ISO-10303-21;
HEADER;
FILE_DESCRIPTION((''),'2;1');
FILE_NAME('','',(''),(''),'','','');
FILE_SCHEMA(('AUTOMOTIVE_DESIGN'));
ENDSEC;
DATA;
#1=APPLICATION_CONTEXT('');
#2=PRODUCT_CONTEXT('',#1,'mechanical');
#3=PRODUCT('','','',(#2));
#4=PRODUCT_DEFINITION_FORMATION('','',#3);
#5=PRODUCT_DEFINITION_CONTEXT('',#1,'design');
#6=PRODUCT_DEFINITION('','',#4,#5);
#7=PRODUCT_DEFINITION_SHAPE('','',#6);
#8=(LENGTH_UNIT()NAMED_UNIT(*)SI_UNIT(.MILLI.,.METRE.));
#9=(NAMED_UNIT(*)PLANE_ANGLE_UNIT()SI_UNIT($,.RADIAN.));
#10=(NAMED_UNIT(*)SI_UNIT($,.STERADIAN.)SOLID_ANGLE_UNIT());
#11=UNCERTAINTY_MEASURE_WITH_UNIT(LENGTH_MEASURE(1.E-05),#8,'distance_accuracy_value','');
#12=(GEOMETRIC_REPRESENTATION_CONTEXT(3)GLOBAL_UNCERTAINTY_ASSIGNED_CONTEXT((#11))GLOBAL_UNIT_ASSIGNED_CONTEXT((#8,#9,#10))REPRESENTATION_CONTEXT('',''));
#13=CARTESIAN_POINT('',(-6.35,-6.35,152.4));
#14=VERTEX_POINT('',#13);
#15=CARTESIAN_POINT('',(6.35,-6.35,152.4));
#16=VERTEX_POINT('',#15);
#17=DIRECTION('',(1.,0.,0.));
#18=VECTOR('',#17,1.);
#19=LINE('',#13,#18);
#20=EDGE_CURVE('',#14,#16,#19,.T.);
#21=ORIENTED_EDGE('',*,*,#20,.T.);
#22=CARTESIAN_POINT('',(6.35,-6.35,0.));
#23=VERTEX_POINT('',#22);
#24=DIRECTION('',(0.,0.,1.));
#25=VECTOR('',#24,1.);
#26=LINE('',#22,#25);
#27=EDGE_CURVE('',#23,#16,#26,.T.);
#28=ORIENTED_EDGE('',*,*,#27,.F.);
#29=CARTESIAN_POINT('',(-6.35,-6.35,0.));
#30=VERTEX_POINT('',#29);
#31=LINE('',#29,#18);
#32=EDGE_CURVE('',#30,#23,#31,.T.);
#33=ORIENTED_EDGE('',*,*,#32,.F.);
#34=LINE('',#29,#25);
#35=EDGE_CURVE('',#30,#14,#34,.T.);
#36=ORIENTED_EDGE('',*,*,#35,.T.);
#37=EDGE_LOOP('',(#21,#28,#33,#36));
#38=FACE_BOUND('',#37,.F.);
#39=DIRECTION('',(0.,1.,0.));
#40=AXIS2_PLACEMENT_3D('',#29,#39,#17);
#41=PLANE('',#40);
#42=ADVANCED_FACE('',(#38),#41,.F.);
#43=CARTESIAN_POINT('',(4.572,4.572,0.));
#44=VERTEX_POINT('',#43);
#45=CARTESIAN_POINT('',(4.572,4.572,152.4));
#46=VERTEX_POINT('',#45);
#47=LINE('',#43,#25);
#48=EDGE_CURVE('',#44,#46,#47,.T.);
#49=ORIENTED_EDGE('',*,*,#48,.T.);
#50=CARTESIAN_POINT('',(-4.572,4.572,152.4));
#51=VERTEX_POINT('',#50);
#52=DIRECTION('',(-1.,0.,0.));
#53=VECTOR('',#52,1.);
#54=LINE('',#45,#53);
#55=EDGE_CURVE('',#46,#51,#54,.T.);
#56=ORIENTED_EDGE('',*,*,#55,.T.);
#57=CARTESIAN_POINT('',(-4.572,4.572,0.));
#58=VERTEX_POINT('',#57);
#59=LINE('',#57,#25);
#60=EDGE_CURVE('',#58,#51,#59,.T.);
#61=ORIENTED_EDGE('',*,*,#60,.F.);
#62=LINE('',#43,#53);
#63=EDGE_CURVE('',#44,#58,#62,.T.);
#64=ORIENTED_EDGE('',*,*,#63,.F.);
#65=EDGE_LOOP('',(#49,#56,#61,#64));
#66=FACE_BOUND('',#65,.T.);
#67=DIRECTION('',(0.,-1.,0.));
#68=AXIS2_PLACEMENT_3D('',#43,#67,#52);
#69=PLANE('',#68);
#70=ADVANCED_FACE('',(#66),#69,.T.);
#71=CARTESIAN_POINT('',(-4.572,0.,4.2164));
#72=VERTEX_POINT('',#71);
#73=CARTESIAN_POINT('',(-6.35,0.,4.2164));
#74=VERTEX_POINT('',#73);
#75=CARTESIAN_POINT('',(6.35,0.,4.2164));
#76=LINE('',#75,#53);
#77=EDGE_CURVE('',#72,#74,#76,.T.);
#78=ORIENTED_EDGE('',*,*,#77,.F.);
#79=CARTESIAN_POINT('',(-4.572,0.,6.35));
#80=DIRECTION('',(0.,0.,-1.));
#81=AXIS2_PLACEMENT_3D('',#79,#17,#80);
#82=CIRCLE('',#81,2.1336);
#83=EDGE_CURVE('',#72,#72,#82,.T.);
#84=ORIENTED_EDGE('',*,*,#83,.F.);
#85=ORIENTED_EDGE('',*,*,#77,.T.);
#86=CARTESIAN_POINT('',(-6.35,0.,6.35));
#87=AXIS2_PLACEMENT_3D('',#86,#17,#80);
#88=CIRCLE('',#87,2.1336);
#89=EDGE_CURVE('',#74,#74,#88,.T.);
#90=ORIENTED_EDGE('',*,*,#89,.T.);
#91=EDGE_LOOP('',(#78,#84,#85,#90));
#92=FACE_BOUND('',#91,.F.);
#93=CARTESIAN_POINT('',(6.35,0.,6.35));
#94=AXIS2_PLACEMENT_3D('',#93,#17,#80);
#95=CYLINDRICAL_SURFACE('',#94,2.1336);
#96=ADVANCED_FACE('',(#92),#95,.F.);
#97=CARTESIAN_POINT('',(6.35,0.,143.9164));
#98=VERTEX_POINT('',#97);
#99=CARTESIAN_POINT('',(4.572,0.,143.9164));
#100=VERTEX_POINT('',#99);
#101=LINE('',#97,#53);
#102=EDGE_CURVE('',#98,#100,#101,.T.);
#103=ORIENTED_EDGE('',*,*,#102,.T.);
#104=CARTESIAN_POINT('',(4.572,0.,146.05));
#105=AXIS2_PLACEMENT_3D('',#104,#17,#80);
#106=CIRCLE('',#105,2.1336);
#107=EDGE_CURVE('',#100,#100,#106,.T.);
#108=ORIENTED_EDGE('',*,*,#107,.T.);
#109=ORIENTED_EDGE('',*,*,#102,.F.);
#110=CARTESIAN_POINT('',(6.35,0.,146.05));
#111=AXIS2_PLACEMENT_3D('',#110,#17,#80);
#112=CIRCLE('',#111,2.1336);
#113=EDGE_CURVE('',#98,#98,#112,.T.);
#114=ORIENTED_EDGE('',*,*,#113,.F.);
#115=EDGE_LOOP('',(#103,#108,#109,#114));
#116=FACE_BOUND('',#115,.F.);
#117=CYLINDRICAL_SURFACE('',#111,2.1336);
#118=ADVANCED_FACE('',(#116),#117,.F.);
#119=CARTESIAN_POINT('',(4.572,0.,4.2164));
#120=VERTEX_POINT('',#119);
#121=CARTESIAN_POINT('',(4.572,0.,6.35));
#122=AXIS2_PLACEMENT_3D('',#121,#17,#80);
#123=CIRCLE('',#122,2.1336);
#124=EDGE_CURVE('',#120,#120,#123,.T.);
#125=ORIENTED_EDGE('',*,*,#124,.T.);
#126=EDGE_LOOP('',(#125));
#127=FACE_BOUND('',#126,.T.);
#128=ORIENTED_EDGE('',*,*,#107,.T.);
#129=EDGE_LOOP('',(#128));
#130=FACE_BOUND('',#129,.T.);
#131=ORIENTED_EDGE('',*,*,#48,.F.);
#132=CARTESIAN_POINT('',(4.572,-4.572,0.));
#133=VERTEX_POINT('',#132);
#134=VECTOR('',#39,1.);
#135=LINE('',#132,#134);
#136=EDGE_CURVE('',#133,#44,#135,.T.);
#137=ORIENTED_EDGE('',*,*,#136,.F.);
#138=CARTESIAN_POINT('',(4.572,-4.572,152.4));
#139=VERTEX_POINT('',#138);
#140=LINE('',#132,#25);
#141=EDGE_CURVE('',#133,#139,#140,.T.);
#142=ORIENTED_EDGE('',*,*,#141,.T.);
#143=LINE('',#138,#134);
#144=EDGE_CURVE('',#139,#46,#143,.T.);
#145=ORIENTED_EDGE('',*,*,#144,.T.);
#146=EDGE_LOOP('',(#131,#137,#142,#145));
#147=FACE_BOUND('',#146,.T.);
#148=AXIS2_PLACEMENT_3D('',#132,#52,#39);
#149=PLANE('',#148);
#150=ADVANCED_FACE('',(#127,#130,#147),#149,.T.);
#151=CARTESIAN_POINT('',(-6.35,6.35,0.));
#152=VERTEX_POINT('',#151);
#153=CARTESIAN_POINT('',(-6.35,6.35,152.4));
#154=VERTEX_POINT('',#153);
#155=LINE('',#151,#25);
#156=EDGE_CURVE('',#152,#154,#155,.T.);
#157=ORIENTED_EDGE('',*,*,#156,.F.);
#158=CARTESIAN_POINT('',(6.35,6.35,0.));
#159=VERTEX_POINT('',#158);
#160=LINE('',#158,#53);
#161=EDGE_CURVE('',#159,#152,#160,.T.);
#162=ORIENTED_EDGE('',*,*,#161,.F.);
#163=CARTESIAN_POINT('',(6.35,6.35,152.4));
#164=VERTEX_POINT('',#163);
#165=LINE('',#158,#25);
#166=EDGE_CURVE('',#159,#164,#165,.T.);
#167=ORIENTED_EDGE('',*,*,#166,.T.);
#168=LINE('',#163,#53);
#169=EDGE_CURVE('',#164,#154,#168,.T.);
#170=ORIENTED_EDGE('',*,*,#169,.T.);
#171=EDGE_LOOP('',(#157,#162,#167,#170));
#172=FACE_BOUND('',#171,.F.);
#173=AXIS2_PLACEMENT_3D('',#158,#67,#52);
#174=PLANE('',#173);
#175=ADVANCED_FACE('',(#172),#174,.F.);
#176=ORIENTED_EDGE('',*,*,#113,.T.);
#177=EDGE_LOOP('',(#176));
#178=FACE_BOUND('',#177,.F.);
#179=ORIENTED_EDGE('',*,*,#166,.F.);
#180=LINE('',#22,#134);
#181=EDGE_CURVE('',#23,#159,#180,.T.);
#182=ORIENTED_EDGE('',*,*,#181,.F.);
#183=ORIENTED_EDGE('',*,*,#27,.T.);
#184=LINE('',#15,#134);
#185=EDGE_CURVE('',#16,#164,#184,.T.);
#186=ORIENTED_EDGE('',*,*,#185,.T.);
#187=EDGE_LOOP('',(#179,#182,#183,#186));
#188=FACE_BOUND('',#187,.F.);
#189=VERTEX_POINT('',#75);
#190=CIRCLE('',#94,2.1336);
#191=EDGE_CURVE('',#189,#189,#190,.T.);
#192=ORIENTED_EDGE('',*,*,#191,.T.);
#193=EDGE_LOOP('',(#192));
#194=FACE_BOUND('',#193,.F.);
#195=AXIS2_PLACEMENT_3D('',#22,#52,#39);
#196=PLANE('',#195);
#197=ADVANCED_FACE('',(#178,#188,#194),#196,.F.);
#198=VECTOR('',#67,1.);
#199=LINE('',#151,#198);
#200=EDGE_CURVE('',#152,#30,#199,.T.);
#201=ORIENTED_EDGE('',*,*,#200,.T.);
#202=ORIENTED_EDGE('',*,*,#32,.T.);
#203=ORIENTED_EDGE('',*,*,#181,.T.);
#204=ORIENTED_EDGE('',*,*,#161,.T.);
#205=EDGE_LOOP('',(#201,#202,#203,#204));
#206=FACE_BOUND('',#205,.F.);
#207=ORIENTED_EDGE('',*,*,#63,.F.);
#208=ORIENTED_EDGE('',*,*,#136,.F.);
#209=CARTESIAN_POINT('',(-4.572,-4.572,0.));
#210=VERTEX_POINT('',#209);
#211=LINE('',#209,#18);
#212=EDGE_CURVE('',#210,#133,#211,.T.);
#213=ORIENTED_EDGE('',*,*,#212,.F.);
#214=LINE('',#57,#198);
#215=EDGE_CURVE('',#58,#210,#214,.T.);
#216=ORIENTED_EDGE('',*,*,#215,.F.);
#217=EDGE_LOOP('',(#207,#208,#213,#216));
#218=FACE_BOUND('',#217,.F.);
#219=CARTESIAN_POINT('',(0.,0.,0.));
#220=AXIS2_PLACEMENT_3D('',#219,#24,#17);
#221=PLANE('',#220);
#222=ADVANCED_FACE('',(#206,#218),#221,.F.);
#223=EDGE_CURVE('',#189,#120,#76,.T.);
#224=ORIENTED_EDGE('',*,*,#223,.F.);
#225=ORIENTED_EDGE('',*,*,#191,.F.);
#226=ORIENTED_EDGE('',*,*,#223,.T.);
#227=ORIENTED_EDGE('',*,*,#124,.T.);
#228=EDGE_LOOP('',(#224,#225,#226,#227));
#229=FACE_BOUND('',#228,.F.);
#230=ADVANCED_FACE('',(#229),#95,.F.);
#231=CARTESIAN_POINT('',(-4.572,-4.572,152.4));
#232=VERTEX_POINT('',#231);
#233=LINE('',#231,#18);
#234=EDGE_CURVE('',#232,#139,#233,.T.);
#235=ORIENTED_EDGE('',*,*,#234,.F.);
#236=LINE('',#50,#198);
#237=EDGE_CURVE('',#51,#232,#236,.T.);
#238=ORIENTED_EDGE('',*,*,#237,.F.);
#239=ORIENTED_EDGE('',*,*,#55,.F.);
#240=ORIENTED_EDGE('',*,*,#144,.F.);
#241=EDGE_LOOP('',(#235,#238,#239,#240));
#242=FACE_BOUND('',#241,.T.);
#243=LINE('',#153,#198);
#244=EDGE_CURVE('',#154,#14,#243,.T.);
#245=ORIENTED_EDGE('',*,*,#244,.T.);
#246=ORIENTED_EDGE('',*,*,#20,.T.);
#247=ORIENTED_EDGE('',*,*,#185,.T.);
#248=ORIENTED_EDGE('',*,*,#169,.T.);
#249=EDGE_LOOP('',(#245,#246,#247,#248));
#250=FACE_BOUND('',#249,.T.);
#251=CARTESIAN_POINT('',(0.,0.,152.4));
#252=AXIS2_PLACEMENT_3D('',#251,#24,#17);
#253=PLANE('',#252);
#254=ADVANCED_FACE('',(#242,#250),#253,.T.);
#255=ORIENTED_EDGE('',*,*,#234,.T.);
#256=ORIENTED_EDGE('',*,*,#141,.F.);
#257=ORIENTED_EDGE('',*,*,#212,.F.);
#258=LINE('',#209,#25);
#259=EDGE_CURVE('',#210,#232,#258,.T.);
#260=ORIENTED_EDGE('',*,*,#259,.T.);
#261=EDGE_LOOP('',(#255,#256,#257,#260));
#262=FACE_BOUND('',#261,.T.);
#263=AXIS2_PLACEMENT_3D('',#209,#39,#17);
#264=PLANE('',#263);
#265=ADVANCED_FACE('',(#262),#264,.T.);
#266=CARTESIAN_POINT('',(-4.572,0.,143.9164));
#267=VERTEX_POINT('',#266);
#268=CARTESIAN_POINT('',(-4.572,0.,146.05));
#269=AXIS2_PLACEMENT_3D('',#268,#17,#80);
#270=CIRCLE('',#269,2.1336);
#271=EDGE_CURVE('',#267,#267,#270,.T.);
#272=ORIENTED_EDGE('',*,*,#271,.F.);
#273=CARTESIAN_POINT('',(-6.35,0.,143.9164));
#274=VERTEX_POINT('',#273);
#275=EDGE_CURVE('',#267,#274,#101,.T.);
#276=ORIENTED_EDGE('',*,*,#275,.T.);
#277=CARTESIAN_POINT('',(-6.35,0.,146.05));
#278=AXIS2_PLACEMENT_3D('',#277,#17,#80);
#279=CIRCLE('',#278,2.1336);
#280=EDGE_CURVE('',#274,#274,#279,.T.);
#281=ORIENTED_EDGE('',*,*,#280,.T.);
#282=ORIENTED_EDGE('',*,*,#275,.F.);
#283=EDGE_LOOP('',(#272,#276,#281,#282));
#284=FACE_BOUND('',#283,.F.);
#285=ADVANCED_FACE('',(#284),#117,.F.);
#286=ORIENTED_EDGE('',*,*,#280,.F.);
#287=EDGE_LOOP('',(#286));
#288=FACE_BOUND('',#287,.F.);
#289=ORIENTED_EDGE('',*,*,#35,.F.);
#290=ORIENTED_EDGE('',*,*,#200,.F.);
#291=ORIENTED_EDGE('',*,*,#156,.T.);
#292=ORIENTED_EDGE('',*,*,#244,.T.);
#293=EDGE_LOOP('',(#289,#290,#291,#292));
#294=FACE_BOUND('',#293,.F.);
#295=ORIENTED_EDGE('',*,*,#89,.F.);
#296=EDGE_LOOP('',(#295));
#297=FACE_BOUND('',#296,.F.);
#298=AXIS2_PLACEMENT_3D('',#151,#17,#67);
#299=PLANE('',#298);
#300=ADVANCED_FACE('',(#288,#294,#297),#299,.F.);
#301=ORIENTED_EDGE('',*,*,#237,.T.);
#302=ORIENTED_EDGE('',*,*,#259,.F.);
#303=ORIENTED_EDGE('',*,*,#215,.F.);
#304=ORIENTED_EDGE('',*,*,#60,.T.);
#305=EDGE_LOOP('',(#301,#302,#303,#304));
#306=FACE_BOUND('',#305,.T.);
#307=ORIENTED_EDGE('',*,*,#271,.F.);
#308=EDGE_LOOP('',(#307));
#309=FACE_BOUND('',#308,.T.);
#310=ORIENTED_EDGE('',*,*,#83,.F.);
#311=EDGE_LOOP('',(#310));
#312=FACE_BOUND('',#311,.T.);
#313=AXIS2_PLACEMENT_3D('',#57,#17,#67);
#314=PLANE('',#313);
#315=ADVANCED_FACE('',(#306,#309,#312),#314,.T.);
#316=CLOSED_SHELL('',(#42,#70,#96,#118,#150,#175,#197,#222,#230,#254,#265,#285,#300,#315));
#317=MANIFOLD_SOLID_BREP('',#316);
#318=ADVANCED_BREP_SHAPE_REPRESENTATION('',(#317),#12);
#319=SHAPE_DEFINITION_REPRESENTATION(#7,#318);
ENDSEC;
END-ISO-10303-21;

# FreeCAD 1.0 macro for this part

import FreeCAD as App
import Part
import Sketcher
from FreeCAD import Vector
Q = App.Units.Quantity


def add_polygon(sketch, points):
    """Adds a closed chain of lines whose ends are joined by coincident constraints."""
    first, n = sketch.GeometryCount, len(points)
    for a, b in zip(points, points[1:] + points[:1]):
        sketch.addGeometry(Part.LineSegment(App.Vector(*a, 0), App.Vector(*b, 0)), False)
    for i in range(n):
        sketch.addConstraint(Sketcher.Constraint("Coincident", first + i, 2, first + (i + 1) % n, 1))

doc = App.newDocument("Part")
body = doc.addObject("PartDesign::Body", "Body")

# Sketch on XY plane
sketch1 = body.newObject("Sketcher::SketchObject", "Sketch")
sketch1.AttachmentSupport = (doc.getObject("XY_Plane"), [""])
sketch1.MapMode = "FlatFace"
add_polygon(sketch1, [(-6, 6), (-6, -6), (6, -6), (6, 6)])  # lines 0-3
add_polygon(sketch1, [(-5, 5), (5, 5), (5, -5), (-5, -5)])  # lines 4-7
sketch1.addConstraint([
    Sketcher.Constraint("Vertical", 0),
    Sketcher.Constraint("Horizontal", 1),
    Sketcher.Constraint("Vertical", 2),
    Sketcher.Constraint("Horizontal", 3),
    Sketcher.Constraint("Horizontal", 4),
    Sketcher.Constraint("Vertical", 5),
    Sketcher.Constraint("Horizontal", 6),
    Sketcher.Constraint("Vertical", 7),
    Sketcher.Constraint("Symmetric", 0, 2, 2, 2, -1, 1),
    Sketcher.Constraint("Symmetric", 4, 2, 6, 2, -1, 1),
    Sketcher.Constraint("Equal", 3, 0),
    Sketcher.Constraint("Equal", 6, 5),
    Sketcher.Constraint("DistanceX", 1, 1, 1, 2, Q("0.5 in")),
    Sketcher.Constraint("DistanceY", 1, 2, 4, 2, Q("0.43 in")),
])
pad1 = body.newObject("PartDesign::Pad", "Pad")
pad1.Profile = sketch1
pad1.Length = Q("6 in")

# Sketch on YZ plane
sketch2 = body.newObject("Sketcher::SketchObject", "Sketch001")
sketch2.AttachmentSupport = (doc.getObject("YZ_Plane"), [""])
sketch2.MapMode = "FlatFace"
sketch2.AttachmentOffset = App.Placement(Vector(0, 0, 0.25 * 25.4), App.Rotation())
sketch2.addGeometry([
    Part.Circle(Vector(0, 146.1, 0), Vector(0, 0, 1), 2.1),
    Part.Circle(Vector(0, 6.3, 0), Vector(0, 0, 1), 2.1),
], False)
sketch2.addConstraint([
    Sketcher.Constraint("Equal", 0, 1),
    Sketcher.Constraint("PointOnObject", 0, 3, -2),
    Sketcher.Constraint("PointOnObject", 1, 3, -2),
    Sketcher.Constraint("Diameter", 0, Q("0.168 in")),
    Sketcher.Constraint("DistanceY", -1, 1, 1, 3, Q("0.25 in")),
    Sketcher.Constraint("DistanceY", 1, 3, 0, 3, Q("5.5 in")),
])
pocket1 = body.newObject("PartDesign::Pocket", "Pocket")
pocket1.Profile = sketch2
pocket1.Length = Q("0.5 in")

doc.recompute()
